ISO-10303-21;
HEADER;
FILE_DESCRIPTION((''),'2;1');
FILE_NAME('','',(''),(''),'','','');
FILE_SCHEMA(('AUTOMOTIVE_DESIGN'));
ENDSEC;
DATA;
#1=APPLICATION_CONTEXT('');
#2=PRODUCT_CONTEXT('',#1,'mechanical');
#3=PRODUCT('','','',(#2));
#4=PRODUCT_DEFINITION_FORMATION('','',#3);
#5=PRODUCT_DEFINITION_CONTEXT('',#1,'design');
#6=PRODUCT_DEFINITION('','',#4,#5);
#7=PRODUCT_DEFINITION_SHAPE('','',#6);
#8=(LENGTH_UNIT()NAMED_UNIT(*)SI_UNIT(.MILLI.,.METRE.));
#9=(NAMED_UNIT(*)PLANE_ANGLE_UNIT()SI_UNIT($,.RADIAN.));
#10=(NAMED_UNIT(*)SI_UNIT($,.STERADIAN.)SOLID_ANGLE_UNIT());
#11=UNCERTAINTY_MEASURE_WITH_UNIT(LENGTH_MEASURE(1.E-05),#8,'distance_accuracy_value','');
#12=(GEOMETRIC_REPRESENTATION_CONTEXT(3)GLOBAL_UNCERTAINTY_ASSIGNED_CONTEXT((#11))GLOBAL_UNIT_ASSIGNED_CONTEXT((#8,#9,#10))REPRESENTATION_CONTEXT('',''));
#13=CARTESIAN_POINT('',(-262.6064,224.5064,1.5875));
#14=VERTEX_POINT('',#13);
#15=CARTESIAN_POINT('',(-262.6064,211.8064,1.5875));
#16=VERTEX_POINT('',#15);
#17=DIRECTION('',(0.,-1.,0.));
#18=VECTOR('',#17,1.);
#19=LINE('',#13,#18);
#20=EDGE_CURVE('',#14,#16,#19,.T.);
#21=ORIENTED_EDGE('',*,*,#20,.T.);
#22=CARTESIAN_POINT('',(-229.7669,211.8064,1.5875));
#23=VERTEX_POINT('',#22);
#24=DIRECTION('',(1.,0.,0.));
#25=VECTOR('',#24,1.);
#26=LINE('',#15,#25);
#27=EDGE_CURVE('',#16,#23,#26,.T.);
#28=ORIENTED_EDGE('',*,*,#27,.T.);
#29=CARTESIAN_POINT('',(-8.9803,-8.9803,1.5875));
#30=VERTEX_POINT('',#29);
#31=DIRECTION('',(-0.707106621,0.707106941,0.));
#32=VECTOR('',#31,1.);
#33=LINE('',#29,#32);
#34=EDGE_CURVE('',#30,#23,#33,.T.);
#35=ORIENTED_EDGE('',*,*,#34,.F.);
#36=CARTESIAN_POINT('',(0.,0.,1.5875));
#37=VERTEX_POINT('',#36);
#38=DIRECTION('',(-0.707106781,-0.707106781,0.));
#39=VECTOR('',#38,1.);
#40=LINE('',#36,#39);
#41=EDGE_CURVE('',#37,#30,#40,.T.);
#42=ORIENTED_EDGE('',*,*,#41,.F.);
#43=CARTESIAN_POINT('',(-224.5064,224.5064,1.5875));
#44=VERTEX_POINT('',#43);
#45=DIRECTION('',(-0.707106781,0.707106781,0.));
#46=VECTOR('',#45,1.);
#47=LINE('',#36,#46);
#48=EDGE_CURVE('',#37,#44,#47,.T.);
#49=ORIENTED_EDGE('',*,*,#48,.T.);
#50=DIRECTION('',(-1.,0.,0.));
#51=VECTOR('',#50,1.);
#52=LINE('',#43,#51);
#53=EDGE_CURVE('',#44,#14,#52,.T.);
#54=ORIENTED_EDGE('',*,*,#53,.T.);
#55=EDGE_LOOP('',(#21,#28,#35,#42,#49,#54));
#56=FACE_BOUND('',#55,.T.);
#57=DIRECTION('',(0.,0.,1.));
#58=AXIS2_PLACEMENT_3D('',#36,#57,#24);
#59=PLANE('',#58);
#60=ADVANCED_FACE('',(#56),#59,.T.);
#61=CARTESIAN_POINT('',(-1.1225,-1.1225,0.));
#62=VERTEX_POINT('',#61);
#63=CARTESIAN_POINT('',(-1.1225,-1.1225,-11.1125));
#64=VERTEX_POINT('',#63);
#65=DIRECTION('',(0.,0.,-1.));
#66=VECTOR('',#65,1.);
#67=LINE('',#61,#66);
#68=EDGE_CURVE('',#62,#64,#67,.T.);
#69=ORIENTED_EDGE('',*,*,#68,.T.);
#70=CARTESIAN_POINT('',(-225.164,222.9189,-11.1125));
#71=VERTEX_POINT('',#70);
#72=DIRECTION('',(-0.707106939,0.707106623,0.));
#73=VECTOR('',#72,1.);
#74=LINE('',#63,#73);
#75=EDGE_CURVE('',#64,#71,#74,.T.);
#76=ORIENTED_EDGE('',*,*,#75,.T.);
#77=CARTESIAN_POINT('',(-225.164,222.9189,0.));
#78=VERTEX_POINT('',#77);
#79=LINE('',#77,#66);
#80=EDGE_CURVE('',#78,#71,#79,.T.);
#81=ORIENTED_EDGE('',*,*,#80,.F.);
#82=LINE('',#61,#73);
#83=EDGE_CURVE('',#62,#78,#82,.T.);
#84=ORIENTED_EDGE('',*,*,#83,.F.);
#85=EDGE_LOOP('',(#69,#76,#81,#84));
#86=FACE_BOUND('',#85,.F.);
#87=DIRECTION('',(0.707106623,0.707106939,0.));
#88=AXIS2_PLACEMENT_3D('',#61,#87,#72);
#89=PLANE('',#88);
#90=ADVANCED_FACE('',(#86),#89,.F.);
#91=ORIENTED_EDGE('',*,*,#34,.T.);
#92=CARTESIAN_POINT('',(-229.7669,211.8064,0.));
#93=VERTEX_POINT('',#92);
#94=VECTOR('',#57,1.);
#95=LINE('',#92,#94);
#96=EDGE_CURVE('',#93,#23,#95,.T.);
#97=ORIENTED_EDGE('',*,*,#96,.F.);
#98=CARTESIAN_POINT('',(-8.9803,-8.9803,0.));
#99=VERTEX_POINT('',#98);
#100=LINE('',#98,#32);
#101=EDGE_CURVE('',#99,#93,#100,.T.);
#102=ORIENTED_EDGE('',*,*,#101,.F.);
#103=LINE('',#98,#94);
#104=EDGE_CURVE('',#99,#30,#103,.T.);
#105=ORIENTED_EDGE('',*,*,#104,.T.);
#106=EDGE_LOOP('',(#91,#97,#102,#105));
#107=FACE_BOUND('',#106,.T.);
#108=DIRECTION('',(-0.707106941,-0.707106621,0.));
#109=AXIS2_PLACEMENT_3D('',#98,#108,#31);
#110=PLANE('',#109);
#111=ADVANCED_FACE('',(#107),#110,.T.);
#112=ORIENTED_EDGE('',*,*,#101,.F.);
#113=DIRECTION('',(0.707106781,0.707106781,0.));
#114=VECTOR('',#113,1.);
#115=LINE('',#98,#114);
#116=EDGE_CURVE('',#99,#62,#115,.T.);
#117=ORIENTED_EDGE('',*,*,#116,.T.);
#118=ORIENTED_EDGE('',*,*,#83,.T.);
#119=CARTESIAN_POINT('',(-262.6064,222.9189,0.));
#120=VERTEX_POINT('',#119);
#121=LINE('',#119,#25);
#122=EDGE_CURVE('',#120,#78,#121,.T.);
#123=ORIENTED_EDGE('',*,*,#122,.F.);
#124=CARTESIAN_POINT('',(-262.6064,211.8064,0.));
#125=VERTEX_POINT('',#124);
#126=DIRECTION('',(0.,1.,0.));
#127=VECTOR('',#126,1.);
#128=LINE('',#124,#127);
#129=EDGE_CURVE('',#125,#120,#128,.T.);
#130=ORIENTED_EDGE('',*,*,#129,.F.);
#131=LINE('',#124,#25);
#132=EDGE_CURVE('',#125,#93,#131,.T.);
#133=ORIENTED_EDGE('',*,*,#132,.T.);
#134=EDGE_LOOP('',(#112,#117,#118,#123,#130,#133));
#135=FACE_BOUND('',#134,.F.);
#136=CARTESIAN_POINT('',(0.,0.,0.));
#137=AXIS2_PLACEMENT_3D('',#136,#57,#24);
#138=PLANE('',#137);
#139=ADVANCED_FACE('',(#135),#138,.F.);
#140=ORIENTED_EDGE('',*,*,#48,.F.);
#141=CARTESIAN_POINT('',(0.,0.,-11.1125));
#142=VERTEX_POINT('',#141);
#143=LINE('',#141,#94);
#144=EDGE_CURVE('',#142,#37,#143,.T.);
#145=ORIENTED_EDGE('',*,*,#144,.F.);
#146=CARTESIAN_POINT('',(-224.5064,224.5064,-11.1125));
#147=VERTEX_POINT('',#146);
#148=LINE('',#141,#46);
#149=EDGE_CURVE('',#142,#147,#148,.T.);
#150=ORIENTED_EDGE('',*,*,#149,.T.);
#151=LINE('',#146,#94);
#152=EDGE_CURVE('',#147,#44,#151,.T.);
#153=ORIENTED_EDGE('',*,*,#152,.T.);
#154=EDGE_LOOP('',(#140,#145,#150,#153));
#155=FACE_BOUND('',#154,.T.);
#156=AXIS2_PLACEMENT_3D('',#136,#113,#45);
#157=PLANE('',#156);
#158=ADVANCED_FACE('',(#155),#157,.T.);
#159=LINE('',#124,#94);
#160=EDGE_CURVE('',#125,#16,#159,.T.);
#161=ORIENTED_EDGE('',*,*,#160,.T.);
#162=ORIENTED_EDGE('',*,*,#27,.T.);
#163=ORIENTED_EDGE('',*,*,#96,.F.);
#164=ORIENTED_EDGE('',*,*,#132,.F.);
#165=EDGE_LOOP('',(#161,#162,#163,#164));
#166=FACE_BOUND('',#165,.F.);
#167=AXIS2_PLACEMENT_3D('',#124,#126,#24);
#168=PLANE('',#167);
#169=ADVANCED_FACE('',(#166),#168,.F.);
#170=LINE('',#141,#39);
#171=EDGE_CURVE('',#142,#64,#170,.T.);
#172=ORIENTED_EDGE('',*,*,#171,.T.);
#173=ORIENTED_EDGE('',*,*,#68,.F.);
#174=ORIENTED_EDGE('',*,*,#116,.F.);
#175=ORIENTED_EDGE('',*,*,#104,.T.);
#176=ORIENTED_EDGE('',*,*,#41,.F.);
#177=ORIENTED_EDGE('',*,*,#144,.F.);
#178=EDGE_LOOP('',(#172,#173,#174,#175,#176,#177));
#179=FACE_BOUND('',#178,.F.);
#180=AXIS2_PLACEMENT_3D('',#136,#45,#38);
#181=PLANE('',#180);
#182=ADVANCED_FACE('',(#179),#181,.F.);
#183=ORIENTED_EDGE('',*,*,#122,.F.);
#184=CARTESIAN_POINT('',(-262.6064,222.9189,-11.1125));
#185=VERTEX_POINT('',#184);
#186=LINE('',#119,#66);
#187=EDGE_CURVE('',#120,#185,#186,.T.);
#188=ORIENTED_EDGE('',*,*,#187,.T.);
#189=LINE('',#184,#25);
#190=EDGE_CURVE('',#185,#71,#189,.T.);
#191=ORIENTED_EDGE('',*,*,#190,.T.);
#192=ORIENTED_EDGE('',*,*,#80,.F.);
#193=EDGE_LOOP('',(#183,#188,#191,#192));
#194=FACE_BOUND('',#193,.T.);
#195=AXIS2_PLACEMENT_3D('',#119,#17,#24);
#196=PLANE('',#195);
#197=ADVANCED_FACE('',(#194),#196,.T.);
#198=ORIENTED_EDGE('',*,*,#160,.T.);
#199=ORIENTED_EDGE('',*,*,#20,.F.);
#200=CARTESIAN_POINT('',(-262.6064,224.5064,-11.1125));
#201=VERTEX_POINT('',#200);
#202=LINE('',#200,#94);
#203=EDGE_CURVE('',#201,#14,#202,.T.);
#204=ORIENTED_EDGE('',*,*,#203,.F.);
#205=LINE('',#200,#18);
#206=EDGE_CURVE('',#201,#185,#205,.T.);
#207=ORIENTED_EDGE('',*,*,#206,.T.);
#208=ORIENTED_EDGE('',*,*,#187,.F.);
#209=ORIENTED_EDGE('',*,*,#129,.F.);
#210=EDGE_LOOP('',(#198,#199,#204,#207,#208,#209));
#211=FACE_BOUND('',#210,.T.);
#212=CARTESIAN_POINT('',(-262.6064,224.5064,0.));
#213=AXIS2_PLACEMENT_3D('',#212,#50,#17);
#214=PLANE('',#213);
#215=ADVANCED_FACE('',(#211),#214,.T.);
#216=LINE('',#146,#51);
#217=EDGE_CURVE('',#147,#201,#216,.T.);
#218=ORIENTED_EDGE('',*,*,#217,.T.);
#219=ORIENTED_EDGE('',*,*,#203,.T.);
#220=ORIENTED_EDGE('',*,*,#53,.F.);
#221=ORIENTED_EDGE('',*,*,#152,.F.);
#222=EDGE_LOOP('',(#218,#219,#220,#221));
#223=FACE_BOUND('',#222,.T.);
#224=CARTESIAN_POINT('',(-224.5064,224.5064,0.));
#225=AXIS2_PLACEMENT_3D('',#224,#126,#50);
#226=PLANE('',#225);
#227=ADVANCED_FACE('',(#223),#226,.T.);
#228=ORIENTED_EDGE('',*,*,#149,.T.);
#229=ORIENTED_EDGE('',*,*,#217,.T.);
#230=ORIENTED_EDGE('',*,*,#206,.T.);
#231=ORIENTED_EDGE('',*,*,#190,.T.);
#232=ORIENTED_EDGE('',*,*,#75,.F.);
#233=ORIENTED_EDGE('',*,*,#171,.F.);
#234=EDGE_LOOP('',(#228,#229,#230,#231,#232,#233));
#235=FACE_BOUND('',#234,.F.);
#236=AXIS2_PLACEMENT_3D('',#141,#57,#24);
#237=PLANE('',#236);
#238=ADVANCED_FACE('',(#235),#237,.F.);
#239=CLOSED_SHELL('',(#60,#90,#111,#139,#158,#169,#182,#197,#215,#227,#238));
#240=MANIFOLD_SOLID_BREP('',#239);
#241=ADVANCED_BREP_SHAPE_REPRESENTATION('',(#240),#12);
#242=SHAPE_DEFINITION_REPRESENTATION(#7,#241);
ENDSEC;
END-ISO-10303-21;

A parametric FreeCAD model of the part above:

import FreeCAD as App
import Part
import Sketcher
from FreeCAD import Vector
Q = App.Units.Quantity

doc = App.newDocument("Part")
body = doc.addObject("PartDesign::Body", "Body")

# Sketch on XY plane
sketch1 = doc.addObject("Sketcher::SketchObject", "Sketch")
body.addObject(sketch1)
sketch1.AttachmentSupport = (doc.XY_Plane, [""])
sketch1.MapMode = "FlatFace"
sketch1.addGeometry([
    Part.LineSegment(Vector(0, 0, 0), Vector(-224.5064, 224.5064, 0)),  # 0
    Part.LineSegment(Vector(-224.5064, 224.5064, 0), Vector(-262.6064, 224.5064, 0)),  # 1
    Part.LineSegment(Vector(-262.6064, 224.5064, 0), Vector(-262.6064, 211.8064, 0)),  # 2
    Part.LineSegment(Vector(-262.6064, 211.8064, 0), Vector(-229.7669, 211.8064, 0)),  # 3
    Part.LineSegment(Vector(-229.7669, 211.8064, 0), Vector(-8.9803, -8.9803, 0)),  # 4
    Part.LineSegment(Vector(-8.9803, -8.9803, 0), Vector(0, 0, 0)),  # 5
], False)
sketch1.addConstraint([
    Sketcher.Constraint("Coincident", 0, 2, 1, 1),
    Sketcher.Constraint("Coincident", 1, 2, 2, 1),
    Sketcher.Constraint("Coincident", 2, 2, 3, 1),
    Sketcher.Constraint("Coincident", 3, 2, 4, 1),
    Sketcher.Constraint("Coincident", 4, 2, 5, 1),
    Sketcher.Constraint("Coincident", 5, 2, 0, 1),
    Sketcher.Constraint("Horizontal", 1),
    Sketcher.Constraint("Vertical", 2),
    Sketcher.Constraint("Horizontal", 3),
    Sketcher.Constraint("Coincident", 5, 2, -1, 1),
    Sketcher.Constraint("Parallel", 0, 4),
    Sketcher.Constraint("Perpendicular", 4, 5),
    Sketcher.Constraint("DistanceX", 1, 2, 1, 1, Q("1.5 in")),
    Sketcher.Constraint("DistanceY", 2, 2, 2, 1, Q("0.5 in")),
    Sketcher.Constraint("Angle", 0, Q("135 deg")),
    Sketcher.Constraint("Distance", 0, Q("12.5 in")),
    Sketcher.Constraint("Distance", 5, Q("0.5 in")),
])
pad1 = doc.addObject("PartDesign::Pad", "Pad")
body.addObject(pad1)
pad1.Profile = sketch1
pad1.Length = Q("0.0625 in")

# Sketch on XY plane
sketch2 = doc.addObject("Sketcher::SketchObject", "Sketch001")
body.addObject(sketch2)
sketch2.AttachmentSupport = (doc.XY_Plane, [""])
sketch2.MapMode = "FlatFace"
sketch2.addGeometry([
    Part.LineSegment(Vector(-225.163968, 222.918887, 0), Vector(-224.5064, 224.5064, 0)),
    Part.LineSegment(Vector(-224.5064, 224.5064, 0), Vector(-262.6064, 224.5064, 0)),
    Part.LineSegment(Vector(-262.6064, 224.5064, 0), Vector(-262.6064, 222.9189, 0)),
    Part.LineSegment(Vector(-262.6064, 222.9189, 0), Vector(-225.164, 222.9189, 0)),
], False)
sketch2.addConstraint([
    Sketcher.Constraint("Coincident", 0, 2, 1, 1),
    Sketcher.Constraint("Coincident", 1, 2, 2, 1),
    Sketcher.Constraint("Coincident", 2, 2, 3, 1),
    Sketcher.Constraint("Coincident", 3, 2, 0, 1),
    Sketcher.Constraint("Horizontal", 1),
    Sketcher.Constraint("Vertical", 2),
    Sketcher.Constraint("Horizontal", 3),
    Sketcher.Constraint("DistanceX", 1, 2, 1, 1, Q("1.5 in")),
    Sketcher.Constraint("DistanceY", 2, 2, 2, 1, Q("0.0625 in")),
    Sketcher.Constraint("Angle", 0, Q("67.5 deg")),
    Sketcher.Constraint("DistanceX", 0, 2, -1, 1, 224.5064),
    Sketcher.Constraint("DistanceY", -1, 1, 0, 2, 224.5064),
])
pad2 = doc.addObject("PartDesign::Pad", "Pad001")
body.addObject(pad2)
pad2.Profile = sketch2
pad2.Length = Q("0.4375 in")
pad2.Reversed = True

# Sketch on XY plane
sketch3 = doc.addObject("Sketcher::SketchObject", "Sketch002")
body.addObject(sketch3)
sketch3.AttachmentSupport = (doc.XY_Plane, [""])
sketch3.MapMode = "FlatFace"
sketch3.addGeometry([
    Part.LineSegment(Vector(-1.1225, -1.1225, 0), Vector(0, 0, 0)),
    Part.LineSegment(Vector(0, 0, 0), Vector(-224.5064, 224.5064, 0)),
    Part.LineSegment(Vector(-224.5064, 224.5064, 0), Vector(-225.163968, 222.918887, 0)),
    Part.LineSegment(Vector(-225.164, 222.9189, 0), Vector(-1.1225, -1.1225, 0)),
], False)
sketch3.addConstraint([
    Sketcher.Constraint("Coincident", 0, 2, 1, 1),
    Sketcher.Constraint("Coincident", 1, 2, 2, 1),
    Sketcher.Constraint("Coincident", 2, 2, 3, 1),
    Sketcher.Constraint("Coincident", 3, 2, 0, 1),
    Sketcher.Constraint("Coincident", 0, 2, -1, 1),
    Sketcher.Constraint("Perpendicular", 0, 1),
    Sketcher.Constraint("Parallel", 1, 3),
    Sketcher.Constraint("Angle", 1, Q("135 deg")),
    Sketcher.Constraint("Distance", 1, Q("12.5 in")),
    Sketcher.Constraint("Distance", 0, Q("0.0625 in")),
    Sketcher.Constraint("DistanceY", 2, 2, 1, 2, Q("0.0625 in")),
])
pad3 = doc.addObject("PartDesign::Pad", "Pad002")
body.addObject(pad3)
pad3.Profile = sketch3
pad3.Length = Q("0.4375 in")
pad3.Reversed = True

doc.recompute()
